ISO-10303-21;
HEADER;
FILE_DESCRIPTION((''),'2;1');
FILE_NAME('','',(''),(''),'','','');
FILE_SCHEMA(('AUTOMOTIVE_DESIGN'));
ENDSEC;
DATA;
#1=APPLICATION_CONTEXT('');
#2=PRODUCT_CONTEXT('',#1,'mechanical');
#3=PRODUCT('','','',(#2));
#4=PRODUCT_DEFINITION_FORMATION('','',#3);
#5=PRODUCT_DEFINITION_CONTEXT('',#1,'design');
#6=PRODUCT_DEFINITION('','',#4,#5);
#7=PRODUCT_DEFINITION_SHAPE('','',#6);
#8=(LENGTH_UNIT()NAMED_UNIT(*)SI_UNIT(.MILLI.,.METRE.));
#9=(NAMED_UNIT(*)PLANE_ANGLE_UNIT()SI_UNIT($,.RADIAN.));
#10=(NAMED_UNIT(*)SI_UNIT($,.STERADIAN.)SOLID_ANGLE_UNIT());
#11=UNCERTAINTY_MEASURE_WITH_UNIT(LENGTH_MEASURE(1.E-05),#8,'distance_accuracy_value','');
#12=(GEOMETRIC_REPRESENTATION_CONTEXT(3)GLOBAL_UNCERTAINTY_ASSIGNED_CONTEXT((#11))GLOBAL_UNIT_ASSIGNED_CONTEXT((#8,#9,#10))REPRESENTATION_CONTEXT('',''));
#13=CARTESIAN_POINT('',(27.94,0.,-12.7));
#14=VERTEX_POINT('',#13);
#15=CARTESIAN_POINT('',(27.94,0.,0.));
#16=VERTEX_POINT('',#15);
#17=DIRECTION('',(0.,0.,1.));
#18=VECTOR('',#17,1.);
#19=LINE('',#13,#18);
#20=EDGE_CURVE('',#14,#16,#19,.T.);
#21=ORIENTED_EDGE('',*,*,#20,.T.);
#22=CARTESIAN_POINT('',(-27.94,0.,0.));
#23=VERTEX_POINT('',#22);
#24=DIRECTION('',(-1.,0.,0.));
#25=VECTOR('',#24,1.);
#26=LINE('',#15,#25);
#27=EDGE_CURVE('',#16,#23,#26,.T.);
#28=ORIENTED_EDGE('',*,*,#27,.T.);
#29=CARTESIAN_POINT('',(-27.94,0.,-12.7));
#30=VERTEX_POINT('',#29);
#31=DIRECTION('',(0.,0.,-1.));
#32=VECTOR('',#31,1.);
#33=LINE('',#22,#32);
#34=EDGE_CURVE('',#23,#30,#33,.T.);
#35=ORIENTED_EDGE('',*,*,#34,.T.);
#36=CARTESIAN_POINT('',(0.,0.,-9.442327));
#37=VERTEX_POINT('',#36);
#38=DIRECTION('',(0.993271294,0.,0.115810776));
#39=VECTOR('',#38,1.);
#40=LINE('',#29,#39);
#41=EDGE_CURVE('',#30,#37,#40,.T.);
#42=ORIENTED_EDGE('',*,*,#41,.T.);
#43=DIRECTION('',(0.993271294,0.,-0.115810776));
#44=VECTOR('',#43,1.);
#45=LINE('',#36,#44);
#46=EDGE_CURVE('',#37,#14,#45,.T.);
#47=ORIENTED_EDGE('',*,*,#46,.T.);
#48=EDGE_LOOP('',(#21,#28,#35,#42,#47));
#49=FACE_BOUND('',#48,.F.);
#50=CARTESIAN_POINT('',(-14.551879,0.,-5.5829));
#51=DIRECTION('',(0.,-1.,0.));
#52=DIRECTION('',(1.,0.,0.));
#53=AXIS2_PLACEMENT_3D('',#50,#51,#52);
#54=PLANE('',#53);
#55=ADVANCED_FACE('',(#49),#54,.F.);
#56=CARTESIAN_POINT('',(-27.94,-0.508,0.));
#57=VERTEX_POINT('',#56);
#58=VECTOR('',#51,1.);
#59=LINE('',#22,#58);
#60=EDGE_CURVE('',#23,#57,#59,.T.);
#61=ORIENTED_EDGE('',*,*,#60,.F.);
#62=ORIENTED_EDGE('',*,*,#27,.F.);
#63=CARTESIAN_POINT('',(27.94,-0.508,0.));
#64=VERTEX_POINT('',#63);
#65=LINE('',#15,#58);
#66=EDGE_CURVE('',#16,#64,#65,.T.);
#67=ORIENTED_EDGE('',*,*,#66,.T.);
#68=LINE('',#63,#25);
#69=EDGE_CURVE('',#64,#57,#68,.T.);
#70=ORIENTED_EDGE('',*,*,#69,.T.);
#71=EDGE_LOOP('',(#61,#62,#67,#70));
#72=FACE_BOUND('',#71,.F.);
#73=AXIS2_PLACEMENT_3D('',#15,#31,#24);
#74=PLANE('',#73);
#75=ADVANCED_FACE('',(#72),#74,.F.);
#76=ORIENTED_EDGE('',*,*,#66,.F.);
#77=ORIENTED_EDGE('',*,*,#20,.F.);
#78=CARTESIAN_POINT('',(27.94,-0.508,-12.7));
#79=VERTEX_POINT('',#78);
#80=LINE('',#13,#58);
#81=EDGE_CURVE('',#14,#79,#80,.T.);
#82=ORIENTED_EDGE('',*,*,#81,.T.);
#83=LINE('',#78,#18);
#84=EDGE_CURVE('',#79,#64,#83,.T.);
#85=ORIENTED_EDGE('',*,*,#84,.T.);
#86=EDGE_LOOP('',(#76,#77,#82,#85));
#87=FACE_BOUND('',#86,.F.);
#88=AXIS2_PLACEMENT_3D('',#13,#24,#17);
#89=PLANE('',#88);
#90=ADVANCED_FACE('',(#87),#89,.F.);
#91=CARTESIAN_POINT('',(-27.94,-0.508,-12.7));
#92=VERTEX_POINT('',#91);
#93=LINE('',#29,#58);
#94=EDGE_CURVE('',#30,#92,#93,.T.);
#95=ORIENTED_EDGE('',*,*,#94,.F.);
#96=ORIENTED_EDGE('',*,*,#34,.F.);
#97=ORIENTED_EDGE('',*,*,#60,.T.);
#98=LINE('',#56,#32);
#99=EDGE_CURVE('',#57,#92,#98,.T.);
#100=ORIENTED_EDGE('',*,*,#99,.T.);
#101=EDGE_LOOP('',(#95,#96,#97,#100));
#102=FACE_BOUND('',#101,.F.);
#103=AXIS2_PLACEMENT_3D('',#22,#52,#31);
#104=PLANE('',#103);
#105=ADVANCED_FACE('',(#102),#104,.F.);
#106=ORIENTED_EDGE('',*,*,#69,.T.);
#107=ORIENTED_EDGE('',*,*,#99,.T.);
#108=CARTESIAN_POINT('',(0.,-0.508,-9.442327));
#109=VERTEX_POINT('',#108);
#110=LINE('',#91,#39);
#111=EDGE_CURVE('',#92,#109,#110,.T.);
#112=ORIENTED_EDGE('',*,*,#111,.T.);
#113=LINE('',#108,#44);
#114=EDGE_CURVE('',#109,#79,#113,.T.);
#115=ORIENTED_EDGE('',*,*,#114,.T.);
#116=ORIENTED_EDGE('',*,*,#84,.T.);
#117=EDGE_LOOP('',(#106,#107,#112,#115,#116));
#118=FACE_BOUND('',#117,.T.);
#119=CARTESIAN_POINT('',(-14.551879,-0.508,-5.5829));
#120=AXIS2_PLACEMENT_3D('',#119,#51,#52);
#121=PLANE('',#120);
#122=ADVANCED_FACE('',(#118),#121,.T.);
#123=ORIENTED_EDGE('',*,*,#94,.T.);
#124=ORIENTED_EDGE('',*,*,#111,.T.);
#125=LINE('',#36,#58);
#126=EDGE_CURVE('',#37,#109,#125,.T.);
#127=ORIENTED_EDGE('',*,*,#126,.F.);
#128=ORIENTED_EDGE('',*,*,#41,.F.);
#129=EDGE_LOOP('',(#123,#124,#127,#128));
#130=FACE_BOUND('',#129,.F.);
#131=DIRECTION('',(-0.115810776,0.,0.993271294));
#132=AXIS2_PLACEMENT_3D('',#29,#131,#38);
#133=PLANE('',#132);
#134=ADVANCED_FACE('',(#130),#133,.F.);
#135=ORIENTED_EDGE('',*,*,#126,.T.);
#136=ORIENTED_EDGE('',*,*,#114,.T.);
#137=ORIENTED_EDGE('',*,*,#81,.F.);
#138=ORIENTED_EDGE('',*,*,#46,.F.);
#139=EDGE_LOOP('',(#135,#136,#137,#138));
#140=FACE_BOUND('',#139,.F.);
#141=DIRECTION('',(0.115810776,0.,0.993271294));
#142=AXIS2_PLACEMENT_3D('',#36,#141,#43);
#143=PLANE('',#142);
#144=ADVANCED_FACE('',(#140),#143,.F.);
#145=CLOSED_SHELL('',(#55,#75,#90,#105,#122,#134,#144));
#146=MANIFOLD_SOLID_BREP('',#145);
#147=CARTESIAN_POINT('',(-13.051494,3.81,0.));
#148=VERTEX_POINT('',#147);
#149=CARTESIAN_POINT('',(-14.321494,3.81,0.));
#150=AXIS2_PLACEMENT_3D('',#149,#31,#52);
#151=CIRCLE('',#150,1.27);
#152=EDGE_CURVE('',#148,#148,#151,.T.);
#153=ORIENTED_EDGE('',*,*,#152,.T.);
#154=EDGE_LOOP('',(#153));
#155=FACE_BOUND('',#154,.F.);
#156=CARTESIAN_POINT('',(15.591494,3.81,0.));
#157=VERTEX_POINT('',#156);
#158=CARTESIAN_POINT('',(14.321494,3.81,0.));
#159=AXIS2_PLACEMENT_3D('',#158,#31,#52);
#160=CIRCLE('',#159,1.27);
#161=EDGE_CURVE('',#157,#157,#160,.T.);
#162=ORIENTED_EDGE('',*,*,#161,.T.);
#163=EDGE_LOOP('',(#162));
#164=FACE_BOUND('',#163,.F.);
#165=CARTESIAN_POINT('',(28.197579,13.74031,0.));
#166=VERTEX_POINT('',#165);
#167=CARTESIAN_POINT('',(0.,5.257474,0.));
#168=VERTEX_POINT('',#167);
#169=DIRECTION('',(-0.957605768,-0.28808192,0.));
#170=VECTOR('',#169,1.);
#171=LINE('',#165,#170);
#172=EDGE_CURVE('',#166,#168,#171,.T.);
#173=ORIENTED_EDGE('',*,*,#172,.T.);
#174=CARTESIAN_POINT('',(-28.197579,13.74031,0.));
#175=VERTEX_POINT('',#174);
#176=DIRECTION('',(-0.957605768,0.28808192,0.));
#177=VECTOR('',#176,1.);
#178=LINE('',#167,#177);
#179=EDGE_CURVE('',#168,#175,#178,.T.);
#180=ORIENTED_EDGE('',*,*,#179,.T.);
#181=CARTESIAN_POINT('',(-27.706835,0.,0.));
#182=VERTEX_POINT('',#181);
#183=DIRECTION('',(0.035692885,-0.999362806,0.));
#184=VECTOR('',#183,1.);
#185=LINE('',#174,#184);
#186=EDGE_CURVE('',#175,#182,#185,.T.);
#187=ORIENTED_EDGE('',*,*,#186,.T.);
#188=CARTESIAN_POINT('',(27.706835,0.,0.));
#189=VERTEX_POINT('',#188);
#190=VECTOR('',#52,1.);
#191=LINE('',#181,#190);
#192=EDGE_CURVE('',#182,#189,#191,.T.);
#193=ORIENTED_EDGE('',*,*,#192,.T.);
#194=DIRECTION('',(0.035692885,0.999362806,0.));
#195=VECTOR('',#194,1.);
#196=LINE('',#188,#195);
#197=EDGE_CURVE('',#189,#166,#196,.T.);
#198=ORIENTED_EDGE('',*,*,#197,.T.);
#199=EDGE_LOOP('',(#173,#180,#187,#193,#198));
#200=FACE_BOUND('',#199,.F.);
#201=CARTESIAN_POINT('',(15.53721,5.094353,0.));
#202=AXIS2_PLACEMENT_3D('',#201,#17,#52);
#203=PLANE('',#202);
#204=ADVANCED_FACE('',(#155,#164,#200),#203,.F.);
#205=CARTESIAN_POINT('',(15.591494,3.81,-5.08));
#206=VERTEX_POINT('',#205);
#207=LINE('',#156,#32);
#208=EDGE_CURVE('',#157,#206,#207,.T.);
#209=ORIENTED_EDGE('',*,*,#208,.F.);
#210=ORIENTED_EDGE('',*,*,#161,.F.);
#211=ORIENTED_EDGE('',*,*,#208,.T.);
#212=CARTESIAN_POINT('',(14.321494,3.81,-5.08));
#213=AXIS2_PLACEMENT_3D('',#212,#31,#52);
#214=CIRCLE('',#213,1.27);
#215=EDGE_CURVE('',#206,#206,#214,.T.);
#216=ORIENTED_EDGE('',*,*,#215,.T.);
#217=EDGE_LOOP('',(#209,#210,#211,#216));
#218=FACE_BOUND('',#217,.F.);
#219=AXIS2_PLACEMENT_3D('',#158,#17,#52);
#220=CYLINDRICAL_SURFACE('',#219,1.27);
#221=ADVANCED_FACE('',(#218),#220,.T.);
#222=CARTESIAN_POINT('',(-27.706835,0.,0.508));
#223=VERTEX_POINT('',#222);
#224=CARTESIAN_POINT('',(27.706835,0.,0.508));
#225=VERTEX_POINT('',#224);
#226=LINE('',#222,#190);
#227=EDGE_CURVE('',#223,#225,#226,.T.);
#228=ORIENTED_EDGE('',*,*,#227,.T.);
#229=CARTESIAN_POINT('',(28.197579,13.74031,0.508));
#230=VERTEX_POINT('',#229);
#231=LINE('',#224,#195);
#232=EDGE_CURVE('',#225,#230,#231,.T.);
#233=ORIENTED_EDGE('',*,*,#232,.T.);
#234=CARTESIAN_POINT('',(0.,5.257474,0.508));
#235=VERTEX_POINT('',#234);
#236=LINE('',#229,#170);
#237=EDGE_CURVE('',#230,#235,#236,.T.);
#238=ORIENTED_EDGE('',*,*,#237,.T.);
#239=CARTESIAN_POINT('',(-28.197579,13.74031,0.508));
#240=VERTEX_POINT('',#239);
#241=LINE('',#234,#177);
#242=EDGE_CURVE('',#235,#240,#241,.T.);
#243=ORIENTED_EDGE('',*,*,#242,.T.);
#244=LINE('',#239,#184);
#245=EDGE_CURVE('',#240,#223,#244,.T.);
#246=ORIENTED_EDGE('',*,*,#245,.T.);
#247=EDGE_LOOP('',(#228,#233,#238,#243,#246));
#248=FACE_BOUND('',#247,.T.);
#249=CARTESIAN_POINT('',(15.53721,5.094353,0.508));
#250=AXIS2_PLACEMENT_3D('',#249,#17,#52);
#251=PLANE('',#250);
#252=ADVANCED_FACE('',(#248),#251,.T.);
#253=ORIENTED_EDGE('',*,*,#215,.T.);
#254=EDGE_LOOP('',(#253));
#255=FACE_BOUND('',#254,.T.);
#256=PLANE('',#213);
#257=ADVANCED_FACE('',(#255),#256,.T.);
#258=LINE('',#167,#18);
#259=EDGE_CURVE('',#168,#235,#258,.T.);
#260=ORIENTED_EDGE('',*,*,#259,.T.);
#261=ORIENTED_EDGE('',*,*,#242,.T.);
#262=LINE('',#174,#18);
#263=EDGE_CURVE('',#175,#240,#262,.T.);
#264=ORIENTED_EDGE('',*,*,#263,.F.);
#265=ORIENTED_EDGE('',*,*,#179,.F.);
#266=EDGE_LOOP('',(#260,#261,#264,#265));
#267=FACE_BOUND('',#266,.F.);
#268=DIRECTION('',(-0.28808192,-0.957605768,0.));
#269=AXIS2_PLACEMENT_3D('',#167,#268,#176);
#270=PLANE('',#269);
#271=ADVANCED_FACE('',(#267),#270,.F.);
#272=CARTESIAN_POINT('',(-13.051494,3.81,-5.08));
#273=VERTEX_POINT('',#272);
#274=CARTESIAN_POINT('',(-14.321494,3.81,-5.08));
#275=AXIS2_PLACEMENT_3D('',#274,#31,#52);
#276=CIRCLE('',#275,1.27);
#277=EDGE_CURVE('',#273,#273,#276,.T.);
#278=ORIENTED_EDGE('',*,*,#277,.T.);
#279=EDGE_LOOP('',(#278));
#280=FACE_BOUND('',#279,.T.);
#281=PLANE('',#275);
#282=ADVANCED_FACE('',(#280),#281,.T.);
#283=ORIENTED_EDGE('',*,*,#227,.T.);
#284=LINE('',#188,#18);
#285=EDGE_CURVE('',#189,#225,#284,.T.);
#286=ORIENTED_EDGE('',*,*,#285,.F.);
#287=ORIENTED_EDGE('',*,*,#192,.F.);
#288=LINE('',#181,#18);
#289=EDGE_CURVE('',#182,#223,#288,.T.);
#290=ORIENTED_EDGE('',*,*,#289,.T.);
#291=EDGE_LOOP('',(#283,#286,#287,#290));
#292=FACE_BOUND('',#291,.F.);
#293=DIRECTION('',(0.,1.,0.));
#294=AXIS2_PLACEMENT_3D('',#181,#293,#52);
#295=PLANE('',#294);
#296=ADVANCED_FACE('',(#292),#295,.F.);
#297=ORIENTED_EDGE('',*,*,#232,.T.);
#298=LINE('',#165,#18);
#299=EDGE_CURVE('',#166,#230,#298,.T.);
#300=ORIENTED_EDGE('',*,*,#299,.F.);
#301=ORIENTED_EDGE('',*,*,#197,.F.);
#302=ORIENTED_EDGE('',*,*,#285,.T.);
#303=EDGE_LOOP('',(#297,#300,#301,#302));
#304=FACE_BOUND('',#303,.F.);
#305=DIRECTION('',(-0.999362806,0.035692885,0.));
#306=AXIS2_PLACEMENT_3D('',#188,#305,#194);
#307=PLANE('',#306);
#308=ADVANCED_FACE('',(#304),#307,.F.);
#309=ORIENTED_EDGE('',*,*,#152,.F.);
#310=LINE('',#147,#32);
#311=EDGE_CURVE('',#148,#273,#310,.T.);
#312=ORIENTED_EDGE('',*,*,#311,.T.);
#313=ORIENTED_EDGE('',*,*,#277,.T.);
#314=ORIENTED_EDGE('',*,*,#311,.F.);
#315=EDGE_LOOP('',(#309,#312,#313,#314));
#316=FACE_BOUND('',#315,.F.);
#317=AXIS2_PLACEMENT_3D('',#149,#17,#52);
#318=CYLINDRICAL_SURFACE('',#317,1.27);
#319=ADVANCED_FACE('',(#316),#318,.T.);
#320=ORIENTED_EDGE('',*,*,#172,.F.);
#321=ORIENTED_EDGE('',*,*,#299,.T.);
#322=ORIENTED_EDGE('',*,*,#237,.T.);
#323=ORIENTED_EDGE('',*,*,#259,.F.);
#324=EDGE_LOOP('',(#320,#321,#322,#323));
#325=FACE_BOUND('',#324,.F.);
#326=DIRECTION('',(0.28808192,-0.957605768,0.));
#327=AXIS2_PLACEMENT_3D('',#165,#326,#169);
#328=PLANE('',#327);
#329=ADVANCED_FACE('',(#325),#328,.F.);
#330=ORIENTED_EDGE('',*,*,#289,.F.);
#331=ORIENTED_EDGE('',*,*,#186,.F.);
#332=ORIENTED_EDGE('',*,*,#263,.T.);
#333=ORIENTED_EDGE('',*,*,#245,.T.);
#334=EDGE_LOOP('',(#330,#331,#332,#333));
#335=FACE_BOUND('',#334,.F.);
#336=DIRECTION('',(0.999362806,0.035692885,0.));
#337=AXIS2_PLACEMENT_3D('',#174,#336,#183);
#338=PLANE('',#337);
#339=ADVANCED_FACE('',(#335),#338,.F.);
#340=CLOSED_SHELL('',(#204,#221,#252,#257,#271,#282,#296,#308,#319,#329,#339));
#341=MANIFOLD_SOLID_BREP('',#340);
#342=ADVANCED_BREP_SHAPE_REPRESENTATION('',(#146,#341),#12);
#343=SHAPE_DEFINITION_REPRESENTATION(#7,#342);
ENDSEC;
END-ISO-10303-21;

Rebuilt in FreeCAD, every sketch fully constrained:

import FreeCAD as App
import Part
import Sketcher
from FreeCAD import Vector
Q = App.Units.Quantity

doc = App.newDocument("Part")
body = doc.addObject("PartDesign::Body", "Body")

sketch1 = doc.addObject("Sketcher::SketchObject", "Sketch")
body.addObject(sketch1)
sketch1.AttachmentSupport = (doc.XZ_Plane, [""])
sketch1.MapMode = "FlatFace"
sketch1.addGeometry([
    Part.LineSegment(Vector(-28, 0, 0), Vector(-28, -13, 0)),
    Part.LineSegment(Vector(-28, -13, 0), Vector(0, -9, 0)),
    Part.LineSegment(Vector(0, -9, 0), Vector(28, -13, 0)),
    Part.LineSegment(Vector(28, -13, 0), Vector(28, 0, 0)),
    Part.LineSegment(Vector(28, 0, 0), Vector(-28, 0, 0)),
], False)
sketch1.addConstraint([
    Sketcher.Constraint("Coincident", 0, 2, 1, 1),
    Sketcher.Constraint("Coincident", 1, 2, 2, 1),
    Sketcher.Constraint("Coincident", 2, 2, 3, 1),
    Sketcher.Constraint("Coincident", 3, 2, 4, 1),
    Sketcher.Constraint("Coincident", 4, 2, 0, 1),
    Sketcher.Constraint("Vertical", 0),
    Sketcher.Constraint("Vertical", 3),
    Sketcher.Constraint("Horizontal", 4),
    Sketcher.Constraint("Symmetric", 3, 2, 4, 2, -1, 1),
    Sketcher.Constraint("PointOnObject", 1, 2, -2),
    Sketcher.Constraint("Horizontal", 0, 2, 2, 2),
    Sketcher.Constraint("DistanceX", 4, 2, 4, 1, Q("2.2 in")),
    Sketcher.Constraint("DistanceY", 0, 2, 0, 1, Q("0.5 in")),
    Sketcher.Constraint("Distance", 1, 28.129274),
])
pad1 = doc.addObject("PartDesign::Pad", "Pad")
body.addObject(pad1)
pad1.Profile = sketch1
pad1.Length = Q("0.02 in")
body2 = doc.addObject("PartDesign::Body", "Body001")

sketch2 = doc.addObject("Sketcher::SketchObject", "Sketch001")
body2.addObject(sketch2)
sketch2.AttachmentSupport = (doc.getObject("XY_Plane001"), [""])
sketch2.MapMode = "FlatFace"
sketch2.addGeometry([
    Part.LineSegment(Vector(28, 0, 0), Vector(28, 14, 0)),
    Part.LineSegment(Vector(28, 14, 0), Vector(0, 5, 0)),
    Part.LineSegment(Vector(0, 5, 0), Vector(-28, 14, 0)),
    Part.LineSegment(Vector(-28, 14, 0), Vector(-28, 0, 0)),
    Part.LineSegment(Vector(-28, 0, 0), Vector(28, 0, 0)),
], False)
sketch2.addConstraint([
    Sketcher.Constraint("Coincident", 0, 2, 1, 1),
    Sketcher.Constraint("Coincident", 1, 2, 2, 1),
    Sketcher.Constraint("Coincident", 2, 2, 3, 1),
    Sketcher.Constraint("Coincident", 3, 2, 4, 1),
    Sketcher.Constraint("Coincident", 4, 2, 0, 1),
    Sketcher.Constraint("Horizontal", 4),
    Sketcher.Constraint("Symmetric", 3, 2, 4, 2, -1, 1),
    Sketcher.Constraint("Symmetric", 0, 2, 2, 2, -2),
    Sketcher.Constraint("PointOnObject", 1, 2, -2),
    Sketcher.Constraint("DistanceX", 4, 1, 4, 2, 55.41367),
    Sketcher.Constraint("Distance", 0, 13.749071),
    Sketcher.Constraint("DistanceX", -1, 1, 0, 2, 28.197579),
    Sketcher.Constraint("Distance", 1, 29.445916),
])
pad2 = doc.addObject("PartDesign::Pad", "Pad001")
body2.addObject(pad2)
pad2.Profile = sketch2
pad2.Length = Q("0.02 in")

sketch3 = doc.addObject("Sketcher::SketchObject", "Sketch002")
body2.addObject(sketch3)
sketch3.AttachmentSupport = (doc.getObject("XY_Plane001"), [""])
sketch3.MapMode = "FlatFace"
sketch3.addGeometry([
    Part.Circle(Vector(-14.3, 3.8, 0), Vector(0, 0, 1), 1.3),
    Part.Circle(Vector(14.3, 3.8, 0), Vector(0, 0, 1), 1.3),
], False)
sketch3.addConstraint([
    Sketcher.Constraint("Equal", 0, 1),
    Sketcher.Constraint("Symmetric", 0, 3, 1, 3, -2),
    Sketcher.Constraint("Diameter", 0, Q("0.1 in")),
    Sketcher.Constraint("DistanceY", -1, 1, 0, 3, Q("0.15 in")),
    Sketcher.Constraint("DistanceX", 0, 3, -1, 1, 14.321494),
])
pad3 = doc.addObject("PartDesign::Pad", "Pad002")
body2.addObject(pad3)
pad3.Profile = sketch3
pad3.Length = Q("0.2 in")
pad3.Reversed = True

doc.recompute()
